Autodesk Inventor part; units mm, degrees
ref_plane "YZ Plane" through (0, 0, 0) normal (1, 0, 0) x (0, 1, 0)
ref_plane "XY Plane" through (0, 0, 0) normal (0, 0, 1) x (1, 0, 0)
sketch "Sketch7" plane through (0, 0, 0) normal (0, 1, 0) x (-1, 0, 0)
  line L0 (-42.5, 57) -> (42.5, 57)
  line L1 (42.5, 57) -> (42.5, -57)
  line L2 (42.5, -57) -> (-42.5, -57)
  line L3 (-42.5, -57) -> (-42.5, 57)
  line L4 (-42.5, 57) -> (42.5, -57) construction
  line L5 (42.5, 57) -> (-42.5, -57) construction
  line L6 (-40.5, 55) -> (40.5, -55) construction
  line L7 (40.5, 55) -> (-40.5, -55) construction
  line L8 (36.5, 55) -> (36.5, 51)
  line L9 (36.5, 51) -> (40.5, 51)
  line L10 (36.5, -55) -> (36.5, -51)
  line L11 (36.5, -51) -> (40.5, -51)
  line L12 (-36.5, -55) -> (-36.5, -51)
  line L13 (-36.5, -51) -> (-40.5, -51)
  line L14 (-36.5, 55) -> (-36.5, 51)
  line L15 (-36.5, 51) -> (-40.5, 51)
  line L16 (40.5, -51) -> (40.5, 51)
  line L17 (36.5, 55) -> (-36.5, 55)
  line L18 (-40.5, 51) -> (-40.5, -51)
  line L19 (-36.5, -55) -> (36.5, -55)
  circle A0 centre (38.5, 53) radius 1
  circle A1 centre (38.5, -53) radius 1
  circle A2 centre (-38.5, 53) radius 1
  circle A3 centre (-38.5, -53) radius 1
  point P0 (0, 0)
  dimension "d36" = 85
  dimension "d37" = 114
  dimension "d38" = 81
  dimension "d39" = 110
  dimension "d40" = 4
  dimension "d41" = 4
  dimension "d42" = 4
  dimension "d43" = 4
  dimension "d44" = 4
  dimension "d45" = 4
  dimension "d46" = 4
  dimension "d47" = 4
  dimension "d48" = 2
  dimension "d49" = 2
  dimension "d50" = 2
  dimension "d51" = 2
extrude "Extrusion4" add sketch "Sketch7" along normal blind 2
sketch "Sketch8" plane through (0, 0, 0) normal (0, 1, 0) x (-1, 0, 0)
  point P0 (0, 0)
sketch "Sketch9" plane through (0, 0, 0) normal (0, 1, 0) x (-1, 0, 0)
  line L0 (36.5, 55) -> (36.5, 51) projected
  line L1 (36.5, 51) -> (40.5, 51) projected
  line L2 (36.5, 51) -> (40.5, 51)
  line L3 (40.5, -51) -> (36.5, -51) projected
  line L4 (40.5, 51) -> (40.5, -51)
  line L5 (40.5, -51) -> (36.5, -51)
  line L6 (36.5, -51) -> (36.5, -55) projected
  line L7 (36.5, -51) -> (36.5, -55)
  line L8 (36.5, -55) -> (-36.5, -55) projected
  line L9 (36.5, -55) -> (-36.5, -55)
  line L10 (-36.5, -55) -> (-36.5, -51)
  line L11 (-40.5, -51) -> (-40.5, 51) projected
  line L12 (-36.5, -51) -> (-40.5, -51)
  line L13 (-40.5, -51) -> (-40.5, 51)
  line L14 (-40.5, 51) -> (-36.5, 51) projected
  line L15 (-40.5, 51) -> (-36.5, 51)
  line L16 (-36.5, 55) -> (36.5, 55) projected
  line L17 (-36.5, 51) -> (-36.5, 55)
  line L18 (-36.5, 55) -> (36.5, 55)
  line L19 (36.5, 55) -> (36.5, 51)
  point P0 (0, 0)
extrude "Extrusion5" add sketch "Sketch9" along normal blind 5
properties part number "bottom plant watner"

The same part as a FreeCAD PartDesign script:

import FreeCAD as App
import Part
import Sketcher
from FreeCAD import Vector

doc = App.newDocument("Part")
body = doc.addObject("PartDesign::Body", "Body")

sketch1 = body.newObject("Sketcher::SketchObject", "Sketch")
sketch1.AttachmentSupport = (doc.getObject("XZ_Plane"), [""])
sketch1.MapMode = "FlatFace"
sketch1.addGeometry([
    Part.LineSegment(Vector(-42.5, 57, 0), Vector(42.5, 57, 0)),
    Part.LineSegment(Vector(42.5, 57, 0), Vector(42.5, -57, 0)),
    Part.LineSegment(Vector(42.5, -57, 0), Vector(-42.5, -57, 0)),
    Part.LineSegment(Vector(-42.5, -57, 0), Vector(-42.5, 57, 0)),
    Part.Circle(Vector(38.5, -53, 0), Vector(0, 0, 1), 1),
    Part.Circle(Vector(-38.5, -53, 0), Vector(0, 0, 1), 1),
    Part.Circle(Vector(38.5, 53, 0), Vector(0, 0, 1), 1),
    Part.LineSegment(Vector(36.5, 55, 0), Vector(-36.5, 55, 0)),
    Part.LineSegment(Vector(-36.5, 55, 0), Vector(-36.5, 51, 0)),
    Part.LineSegment(Vector(-36.5, 51, 0), Vector(-40.5, 51, 0)),
    Part.LineSegment(Vector(-40.5, 51, 0), Vector(-40.5, -51, 0)),
    Part.LineSegment(Vector(-40.5, -51, 0), Vector(-36.5, -51, 0)),
    Part.LineSegment(Vector(-36.5, -51, 0), Vector(-36.5, -55, 0)),
    Part.LineSegment(Vector(-36.5, -55, 0), Vector(36.5, -55, 0)),
    Part.LineSegment(Vector(36.5, -55, 0), Vector(36.5, -51, 0)),
    Part.LineSegment(Vector(36.5, -51, 0), Vector(40.5, -51, 0)),
    Part.LineSegment(Vector(40.5, -51, 0), Vector(40.5, 51, 0)),
    Part.LineSegment(Vector(40.5, 51, 0), Vector(36.5, 51, 0)),
    Part.LineSegment(Vector(36.5, 51, 0), Vector(36.5, 55, 0)),
    Part.Circle(Vector(-38.5, 53, 0), Vector(0, 0, 1), 1),
], False)
sketch1.addConstraint([
    Sketcher.Constraint("Coincident", 0, 2, 1, 1),
    Sketcher.Constraint("Coincident", 1, 2, 2, 1),
    Sketcher.Constraint("Coincident", 2, 2, 3, 1),
    Sketcher.Constraint("Coincident", 3, 2, 0, 1),
    Sketcher.Constraint("Coincident", 7, 2, 8, 1),
    Sketcher.Constraint("Coincident", 8, 2, 9, 1),
    Sketcher.Constraint("Coincident", 9, 2, 10, 1),
    Sketcher.Constraint("Coincident", 10, 2, 11, 1),
    Sketcher.Constraint("Coincident", 11, 2, 12, 1),
    Sketcher.Constraint("Coincident", 12, 2, 13, 1),
    Sketcher.Constraint("Coincident", 13, 2, 14, 1),
    Sketcher.Constraint("Coincident", 14, 2, 15, 1),
    Sketcher.Constraint("Coincident", 15, 2, 16, 1),
    Sketcher.Constraint("Coincident", 16, 2, 17, 1),
    Sketcher.Constraint("Coincident", 17, 2, 18, 1),
    Sketcher.Constraint("Coincident", 18, 2, 7, 1),
    Sketcher.Constraint("Horizontal", 0),
    Sketcher.Constraint("Vertical", 1),
    Sketcher.Constraint("Horizontal", 2),
    Sketcher.Constraint("Vertical", 3),
    Sketcher.Constraint("Horizontal", 7),
    Sketcher.Constraint("Vertical", 8),
    Sketcher.Constraint("Horizontal", 9),
    Sketcher.Constraint("Vertical", 10),
    Sketcher.Constraint("Horizontal", 11),
    Sketcher.Constraint("Vertical", 12),
    Sketcher.Constraint("Horizontal", 13),
    Sketcher.Constraint("Vertical", 14),
    Sketcher.Constraint("Horizontal", 15),
    Sketcher.Constraint("Vertical", 16),
    Sketcher.Constraint("Horizontal", 17),
    Sketcher.Constraint("Vertical", 18),
    Sketcher.Constraint("Equal", 4, 5),
    Sketcher.Constraint("Equal", 5, 6),
    Sketcher.Constraint("Equal", 6, 19),
    Sketcher.Constraint("Symmetric", 5, 3, 6, 3, -1, 1),
    Sketcher.Constraint("Symmetric", 4, 3, 19, 3, -1, 1),
    Sketcher.Constraint("Symmetric", 0, 2, 2, 2, -1, 1),
    Sketcher.Constraint("Symmetric", 7, 2, 13, 2, -1, 1),
    Sketcher.Constraint("Symmetric", 9, 2, 15, 2, -1, 1),
    Sketcher.Constraint("Symmetric", 11, 2, 17, 2, -1, 1),
    Sketcher.Constraint("Symmetric", 4, 3, 5, 3, -2),
    Sketcher.Constraint("Symmetric", 11, 2, 14, 2, -2),
    Sketcher.Constraint("Equal", 17, 8),
    Sketcher.Constraint("Diameter", 4, 2.0),
    Sketcher.Constraint("DistanceX", 0, 1, 0, 2, 85.0),
    Sketcher.Constraint("DistanceX", 9, 2, 9, 1, 4.0),
    Sketcher.Constraint("DistanceY", 1, 2, 1, 1, 114.0),
    Sketcher.Constraint("DistanceX", 6, 3, 0, 2, 4.0),
    Sketcher.Constraint("DistanceY", 6, 3, 0, 2, 4.0),
    Sketcher.Constraint("DistanceX", 19, 3, 7, 2, 2.0),
    Sketcher.Constraint("DistanceY", 19, 3, 7, 2, 2.0),
])
pad1 = body.newObject("PartDesign::Pad", "Pad")
pad1.Profile = sketch1
pad1.Length = 2
pad1.Reversed = True

sketch2 = body.newObject("Sketcher::SketchObject", "Sketch001")
sketch2.AttachmentSupport = (doc.getObject("XZ_Plane"), [""])
sketch2.MapMode = "FlatFace"
sketch2.addGeometry([
    Part.LineSegment(Vector(-36.5, 51, 0), Vector(-36.5, 55, 0)),
    Part.LineSegment(Vector(-36.5, 55, 0), Vector(36.5, 55, 0)),
    Part.LineSegment(Vector(36.5, 55, 0), Vector(36.5, 51, 0)),
    Part.LineSegment(Vector(36.5, 51, 0), Vector(40.5, 51, 0)),
    Part.LineSegment(Vector(40.5, 51, 0), Vector(40.5, -51, 0)),
    Part.LineSegment(Vector(40.5, -51, 0), Vector(36.5, -51, 0)),
    Part.LineSegment(Vector(36.5, -51, 0), Vector(36.5, -55, 0)),
    Part.LineSegment(Vector(36.5, -55, 0), Vector(-36.5, -55, 0)),
    Part.LineSegment(Vector(-36.5, -55, 0), Vector(-36.5, -51, 0)),
    Part.LineSegment(Vector(-36.5, -51, 0), Vector(-40.5, -51, 0)),
    Part.LineSegment(Vector(-40.5, -51, 0), Vector(-40.5, 51, 0)),
    Part.LineSegment(Vector(-40.5, 51, 0), Vector(-36.5, 51, 0)),
], False)
sketch2.addConstraint([
    Sketcher.Constraint("Coincident", 0, 2, 1, 1),
    Sketcher.Constraint("Coincident", 1, 2, 2, 1),
    Sketcher.Constraint("Coincident", 2, 2, 3, 1),
    Sketcher.Constraint("Coincident", 3, 2, 4, 1),
    Sketcher.Constraint("Coincident", 4, 2, 5, 1),
    Sketcher.Constraint("Coincident", 5, 2, 6, 1),
    Sketcher.Constraint("Coincident", 6, 2, 7, 1),
    Sketcher.Constraint("Coincident", 7, 2, 8, 1),
    Sketcher.Constraint("Coincident", 8, 2, 9, 1),
    Sketcher.Constraint("Coincident", 9, 2, 10, 1),
    Sketcher.Constraint("Coincident", 10, 2, 11, 1),
    Sketcher.Constraint("Coincident", 11, 2, 0, 1),
    Sketcher.Constraint("Vertical", 0),
    Sketcher.Constraint("Horizontal", 1),
    Sketcher.Constraint("Vertical", 2),
    Sketcher.Constraint("Horizontal", 3),
    Sketcher.Constraint("Vertical", 4),
    Sketcher.Constraint("Horizontal", 5),
    Sketcher.Constraint("Vertical", 6),
    Sketcher.Constraint("Horizontal", 7),
    Sketcher.Constraint("Vertical", 8),
    Sketcher.Constraint("Horizontal", 9),
    Sketcher.Constraint("Vertical", 10),
    Sketcher.Constraint("Horizontal", 11),
    Sketcher.Constraint("Symmetric", 0, 2, 6, 2, -1, 1),
    Sketcher.Constraint("Symmetric", 2, 2, 8, 2, -1, 1),
    Sketcher.Constraint("Symmetric", 4, 2, 10, 2, -1, 1),
    Sketcher.Constraint("Symmetric", 5, 2, 8, 2, -2),
    Sketcher.Constraint("Equal", 11, 0),
    Sketcher.Constraint("DistanceX", 1, 1, 1, 2, 73.0),
    Sketcher.Constraint("DistanceX", 3, 1, 3, 2, 4.0),
    Sketcher.Constraint("DistanceY", 4, 2, 4, 1, 102.0),
])
pad2 = body.newObject("PartDesign::Pad", "Pad001")
pad2.Profile = sketch2
pad2.Length = 5
pad2.Reversed = True

doc.recompute()
